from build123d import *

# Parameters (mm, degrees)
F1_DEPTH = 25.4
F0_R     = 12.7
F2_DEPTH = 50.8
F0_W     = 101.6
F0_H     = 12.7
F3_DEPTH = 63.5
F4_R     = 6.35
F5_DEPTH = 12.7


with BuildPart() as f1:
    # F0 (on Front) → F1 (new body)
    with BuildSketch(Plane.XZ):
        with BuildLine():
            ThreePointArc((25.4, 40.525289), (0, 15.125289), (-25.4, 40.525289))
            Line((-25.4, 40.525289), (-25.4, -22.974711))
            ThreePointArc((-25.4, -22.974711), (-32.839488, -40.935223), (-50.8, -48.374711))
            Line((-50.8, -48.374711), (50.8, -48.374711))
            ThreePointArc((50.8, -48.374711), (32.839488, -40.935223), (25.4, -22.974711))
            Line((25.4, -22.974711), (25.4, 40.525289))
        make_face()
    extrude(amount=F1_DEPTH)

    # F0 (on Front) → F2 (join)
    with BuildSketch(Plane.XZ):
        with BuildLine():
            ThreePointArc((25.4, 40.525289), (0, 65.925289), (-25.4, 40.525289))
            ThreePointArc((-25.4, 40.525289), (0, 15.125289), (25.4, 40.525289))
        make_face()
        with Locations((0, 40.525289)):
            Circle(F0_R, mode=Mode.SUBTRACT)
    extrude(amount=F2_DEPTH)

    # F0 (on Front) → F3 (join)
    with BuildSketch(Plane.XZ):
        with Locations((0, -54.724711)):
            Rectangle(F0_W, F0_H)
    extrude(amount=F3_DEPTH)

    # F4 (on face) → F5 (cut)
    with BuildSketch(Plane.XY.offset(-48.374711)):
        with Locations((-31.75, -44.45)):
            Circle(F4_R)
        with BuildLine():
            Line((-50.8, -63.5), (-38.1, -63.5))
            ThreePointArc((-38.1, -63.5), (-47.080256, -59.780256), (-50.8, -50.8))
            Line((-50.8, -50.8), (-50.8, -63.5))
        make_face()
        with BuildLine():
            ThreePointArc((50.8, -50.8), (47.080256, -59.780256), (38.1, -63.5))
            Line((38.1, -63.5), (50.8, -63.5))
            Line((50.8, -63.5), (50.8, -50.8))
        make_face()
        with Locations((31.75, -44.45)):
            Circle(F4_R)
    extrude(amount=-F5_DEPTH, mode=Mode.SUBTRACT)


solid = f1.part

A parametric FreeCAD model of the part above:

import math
import FreeCAD as App
import Part
import Sketcher
Q = App.Units.Quantity

doc = App.newDocument("Part")
params = doc.addObject("Spreadsheet::Sheet", "Params")
for row, (alias, value) in enumerate([
    ("sketch1_radius", "1 in"),
    ("sketch1_height", "2.5 in"),
    ("pad1_length", "1 in"),
    ("sketch2_diameter", "2 in"),
    ("sketch2_diameter2", "1 in"),
    ("pad2_length", "2 in"),
    ("sketch3_width", "4 in"),
    ("sketch3_height", "0.5 in"),
    ("pad3_length", "2.5 in"),
    ("sketch4_diameter", "0.5 in"),
    ("sketch4_radius", "0.5 in"),
    ("pocket1_length", "0.5 in"),
], start=1):
    params.set(f"A{row}", alias)
    params.set(f"B{row}", "=" + value)
    params.setAlias(f"B{row}", alias)

body = doc.addObject("PartDesign::Body", "Body")

sketch1 = body.newObject("Sketcher::SketchObject", "Sketch")
sketch1.AttachmentSupport = (doc.getObject("XZ_Plane"), [""])
sketch1.MapMode = "FlatFace"
sketch1.addGeometry(Part.ArcOfCircle(Part.Circle(App.Vector(0, 40.525289, 0), App.Vector(0, 0, 1), 25.4), math.radians(180), math.radians(360)), False)
sketch1.addGeometry(Part.LineSegment(App.Vector(-25.4, 40.525289, 0), App.Vector(-25.4, -22.974711, 0)), False)
sketch1.addGeometry(Part.ArcOfCircle(Part.Circle(App.Vector(-50.800001, -22.97471, 0), App.Vector(0, 0, 1), 25.400001), math.radians(-89.999998), math.radians(-0.000002)), False)
sketch1.addGeometry(Part.LineSegment(App.Vector(-50.8, -48.374711, 0), App.Vector(50.8, -48.374711, 0)), False)
sketch1.addGeometry(Part.ArcOfCircle(Part.Circle(App.Vector(50.800001, -22.97471, 0), App.Vector(0, 0, 1), 25.400001), math.radians(-179.999998), math.radians(-90.000002)), False)
sketch1.addGeometry(Part.LineSegment(App.Vector(25.4, -22.974711, 0), App.Vector(25.4, 40.525289, 0)), False)
sketch1.addConstraint(Sketcher.Constraint("Tangent", 0, 1, 1, 1))
sketch1.addConstraint(Sketcher.Constraint("Tangent", 1, 2, 2, 2))
sketch1.addConstraint(Sketcher.Constraint("Tangent", 2, 1, 3, 1))
sketch1.addConstraint(Sketcher.Constraint("Tangent", 3, 2, 4, 2))
sketch1.addConstraint(Sketcher.Constraint("Tangent", 4, 1, 5, 1))
sketch1.addConstraint(Sketcher.Constraint("Tangent", 5, 2, 0, 2))
sketch1.addConstraint(Sketcher.Constraint("Vertical", 1))
sketch1.addConstraint(Sketcher.Constraint("Horizontal", 3))
sketch1.addConstraint(Sketcher.Constraint("Vertical", 5))
sketch1.addConstraint(Sketcher.Constraint("Equal", 0, 2))
sketch1.addConstraint(Sketcher.Constraint("Equal", 2, 4))
sketch1.addConstraint(Sketcher.Constraint("PointOnObject", 0, 3, -2))
sketch1.addConstraint(Sketcher.Constraint("Radius", 0, Q("1 in")))
sketch1.addConstraint(Sketcher.Constraint("DistanceY", 1, 2, 1, 1, Q("2.5 in")))
sketch1.addConstraint(Sketcher.Constraint("DistanceY", -1, 1, 0, 3, 40.525289))
sketch1.setExpression("Constraints[12]", "Params.sketch1_radius")
sketch1.setExpression("Constraints[13]", "Params.sketch1_height")
pad1 = body.newObject("PartDesign::Pad", "Pad")
pad1.Profile = sketch1
pad1.setExpression("Length", "Params.pad1_length")

sketch2 = body.newObject("Sketcher::SketchObject", "Sketch001")
sketch2.AttachmentSupport = (doc.getObject("XZ_Plane"), [""])
sketch2.MapMode = "FlatFace"
sketch2.addGeometry(Part.Circle(App.Vector(0, 40.525289, 0), App.Vector(0, 0, 1), 25.4), False)
sketch2.addGeometry(Part.Circle(App.Vector(0, 40.525289, 0), App.Vector(0, 0, 1), 12.7), False)
sketch2.addConstraint(Sketcher.Constraint("Coincident", 1, 3, 0, 3))
sketch2.addConstraint(Sketcher.Constraint("PointOnObject", 0, 3, -2))
sketch2.addConstraint(Sketcher.Constraint("Diameter", 0, Q("2 in")))
sketch2.addConstraint(Sketcher.Constraint("Diameter", 1, Q("1 in")))
sketch2.addConstraint(Sketcher.Constraint("DistanceY", -1, 1, 0, 3, 40.525289))
sketch2.setExpression("Constraints[2]", "Params.sketch2_diameter")
sketch2.setExpression("Constraints[3]", "Params.sketch2_diameter2")
pad2 = body.newObject("PartDesign::Pad", "Pad001")
pad2.Profile = sketch2
pad2.setExpression("Length", "Params.pad2_length")

sketch3 = body.newObject("Sketcher::SketchObject", "Sketch002")
sketch3.AttachmentSupport = (doc.getObject("XZ_Plane"), [""])
sketch3.MapMode = "FlatFace"
sketch3.addGeometry(Part.LineSegment(App.Vector(-50.8, -48.374711, 0), App.Vector(-50.8, -61.074711, 0)), False)
sketch3.addGeometry(Part.LineSegment(App.Vector(-50.8, -61.074711, 0), App.Vector(50.8, -61.074711, 0)), False)
sketch3.addGeometry(Part.LineSegment(App.Vector(50.8, -61.074711, 0), App.Vector(50.8, -48.374711, 0)), False)
sketch3.addGeometry(Part.LineSegment(App.Vector(50.8, -48.374711, 0), App.Vector(-50.8, -48.374711, 0)), False)
sketch3.addConstraint(Sketcher.Constraint("Coincident", 0, 2, 1, 1))
sketch3.addConstraint(Sketcher.Constraint("Coincident", 1, 2, 2, 1))
sketch3.addConstraint(Sketcher.Constraint("Coincident", 2, 2, 3, 1))
sketch3.addConstraint(Sketcher.Constraint("Coincident", 3, 2, 0, 1))
sketch3.addConstraint(Sketcher.Constraint("Vertical", 0))
sketch3.addConstraint(Sketcher.Constraint("Horizontal", 1))
sketch3.addConstraint(Sketcher.Constraint("Vertical", 2))
sketch3.addConstraint(Sketcher.Constraint("Horizontal", 3))
sketch3.addConstraint(Sketcher.Constraint("DistanceX", 1, 1, 1, 2, Q("4 in")))
sketch3.addConstraint(Sketcher.Constraint("DistanceY", 0, 2, 0, 1, Q("0.5 in")))
sketch3.addConstraint(Sketcher.Constraint("DistanceX", 0, 2, -1, 1, Q("2 in")))
sketch3.addConstraint(Sketcher.Constraint("DistanceY", 0, 2, -1, 1, 61.074711))
sketch3.setExpression("Constraints[8]", "Params.sketch3_width")
sketch3.setExpression("Constraints[9]", "Params.sketch3_height")
pad3 = body.newObject("PartDesign::Pad", "Pad002")
pad3.Profile = sketch3
pad3.setExpression("Length", "Params.pad3_length")

sketch4 = body.newObject("Sketcher::SketchObject", "Sketch003")
sketch4.AttachmentSupport = (doc.getObject("XY_Plane"), [""])
sketch4.MapMode = "FlatFace"
sketch4.AttachmentOffset = App.Placement(App.Vector(0, 0, -48.374711), App.Rotation())
sketch4.addGeometry(Part.Circle(App.Vector(-31.75, -44.45, 0), App.Vector(0, 0, 1), 6.35), False)
sketch4.addGeometry(Part.LineSegment(App.Vector(-50.8, -63.5, 0), App.Vector(-38.1, -63.5, 0)), False)
sketch4.addGeometry(Part.ArcOfCircle(Part.Circle(App.Vector(-38.1, -50.8, 0), App.Vector(0, 0, 1), 12.7), math.radians(-179.999998), math.radians(-90.000002)), False)
sketch4.addGeometry(Part.LineSegment(App.Vector(-50.8, -50.8, 0), App.Vector(-50.8, -63.5, 0)), False)
sketch4.addGeometry(Part.ArcOfCircle(Part.Circle(App.Vector(38.1, -50.8, 0), App.Vector(0, 0, 1), 12.7), math.radians(-89.999998), math.radians(-0.000002)), False)
sketch4.addGeometry(Part.LineSegment(App.Vector(38.1, -63.5, 0), App.Vector(50.8, -63.5, 0)), False)
sketch4.addGeometry(Part.LineSegment(App.Vector(50.8, -63.5, 0), App.Vector(50.8, -50.8, 0)), False)
sketch4.addGeometry(Part.Circle(App.Vector(31.75, -44.45, 0), App.Vector(0, 0, 1), 6.35), False)
sketch4.addConstraint(Sketcher.Constraint("Tangent", 1, 2, 2, 2))
sketch4.addConstraint(Sketcher.Constraint("Tangent", 2, 1, 3, 1))
sketch4.addConstraint(Sketcher.Constraint("Coincident", 3, 2, 1, 1))
sketch4.addConstraint(Sketcher.Constraint("Tangent", 4, 1, 5, 1))
sketch4.addConstraint(Sketcher.Constraint("Coincident", 5, 2, 6, 1))
sketch4.addConstraint(Sketcher.Constraint("Tangent", 6, 2, 4, 2))
sketch4.addConstraint(Sketcher.Constraint("Horizontal", 1))
sketch4.addConstraint(Sketcher.Constraint("Vertical", 3))
sketch4.addConstraint(Sketcher.Constraint("Horizontal", 5))
sketch4.addConstraint(Sketcher.Constraint("Vertical", 6))
sketch4.addConstraint(Sketcher.Constraint("Equal", 2, 4))
sketch4.addConstraint(Sketcher.Constraint("Equal", 0, 7))
sketch4.addConstraint(Sketcher.Constraint("Symmetric", 2, 3, 4, 3, -2))
sketch4.addConstraint(Sketcher.Constraint("Symmetric", 0, 3, 7, 3, -2))
sketch4.addConstraint(Sketcher.Constraint("Diameter", 0, Q("0.5 in")))
sketch4.addConstraint(Sketcher.Constraint("Radius", 2, Q("0.5 in")))
sketch4.addConstraint(Sketcher.Constraint("DistanceY", 2, 3, -1, 1, Q("2 in")))
sketch4.addConstraint(Sketcher.Constraint("DistanceX", 2, 1, -1, 1, Q("2 in")))
sketch4.addConstraint(Sketcher.Constraint("DistanceX", 0, 3, 7, 3, Q("2.5 in")))
sketch4.addConstraint(Sketcher.Constraint("DistanceY", 0, 3, -1, 1, Q("1.75 in")))
sketch4.setExpression("Constraints[14]", "Params.sketch4_diameter")
sketch4.setExpression("Constraints[15]", "Params.sketch4_radius")
pocket1 = body.newObject("PartDesign::Pocket", "Pocket")
pocket1.Profile = sketch4
pocket1.setExpression("Length", "Params.pocket1_length")

doc.recompute()
